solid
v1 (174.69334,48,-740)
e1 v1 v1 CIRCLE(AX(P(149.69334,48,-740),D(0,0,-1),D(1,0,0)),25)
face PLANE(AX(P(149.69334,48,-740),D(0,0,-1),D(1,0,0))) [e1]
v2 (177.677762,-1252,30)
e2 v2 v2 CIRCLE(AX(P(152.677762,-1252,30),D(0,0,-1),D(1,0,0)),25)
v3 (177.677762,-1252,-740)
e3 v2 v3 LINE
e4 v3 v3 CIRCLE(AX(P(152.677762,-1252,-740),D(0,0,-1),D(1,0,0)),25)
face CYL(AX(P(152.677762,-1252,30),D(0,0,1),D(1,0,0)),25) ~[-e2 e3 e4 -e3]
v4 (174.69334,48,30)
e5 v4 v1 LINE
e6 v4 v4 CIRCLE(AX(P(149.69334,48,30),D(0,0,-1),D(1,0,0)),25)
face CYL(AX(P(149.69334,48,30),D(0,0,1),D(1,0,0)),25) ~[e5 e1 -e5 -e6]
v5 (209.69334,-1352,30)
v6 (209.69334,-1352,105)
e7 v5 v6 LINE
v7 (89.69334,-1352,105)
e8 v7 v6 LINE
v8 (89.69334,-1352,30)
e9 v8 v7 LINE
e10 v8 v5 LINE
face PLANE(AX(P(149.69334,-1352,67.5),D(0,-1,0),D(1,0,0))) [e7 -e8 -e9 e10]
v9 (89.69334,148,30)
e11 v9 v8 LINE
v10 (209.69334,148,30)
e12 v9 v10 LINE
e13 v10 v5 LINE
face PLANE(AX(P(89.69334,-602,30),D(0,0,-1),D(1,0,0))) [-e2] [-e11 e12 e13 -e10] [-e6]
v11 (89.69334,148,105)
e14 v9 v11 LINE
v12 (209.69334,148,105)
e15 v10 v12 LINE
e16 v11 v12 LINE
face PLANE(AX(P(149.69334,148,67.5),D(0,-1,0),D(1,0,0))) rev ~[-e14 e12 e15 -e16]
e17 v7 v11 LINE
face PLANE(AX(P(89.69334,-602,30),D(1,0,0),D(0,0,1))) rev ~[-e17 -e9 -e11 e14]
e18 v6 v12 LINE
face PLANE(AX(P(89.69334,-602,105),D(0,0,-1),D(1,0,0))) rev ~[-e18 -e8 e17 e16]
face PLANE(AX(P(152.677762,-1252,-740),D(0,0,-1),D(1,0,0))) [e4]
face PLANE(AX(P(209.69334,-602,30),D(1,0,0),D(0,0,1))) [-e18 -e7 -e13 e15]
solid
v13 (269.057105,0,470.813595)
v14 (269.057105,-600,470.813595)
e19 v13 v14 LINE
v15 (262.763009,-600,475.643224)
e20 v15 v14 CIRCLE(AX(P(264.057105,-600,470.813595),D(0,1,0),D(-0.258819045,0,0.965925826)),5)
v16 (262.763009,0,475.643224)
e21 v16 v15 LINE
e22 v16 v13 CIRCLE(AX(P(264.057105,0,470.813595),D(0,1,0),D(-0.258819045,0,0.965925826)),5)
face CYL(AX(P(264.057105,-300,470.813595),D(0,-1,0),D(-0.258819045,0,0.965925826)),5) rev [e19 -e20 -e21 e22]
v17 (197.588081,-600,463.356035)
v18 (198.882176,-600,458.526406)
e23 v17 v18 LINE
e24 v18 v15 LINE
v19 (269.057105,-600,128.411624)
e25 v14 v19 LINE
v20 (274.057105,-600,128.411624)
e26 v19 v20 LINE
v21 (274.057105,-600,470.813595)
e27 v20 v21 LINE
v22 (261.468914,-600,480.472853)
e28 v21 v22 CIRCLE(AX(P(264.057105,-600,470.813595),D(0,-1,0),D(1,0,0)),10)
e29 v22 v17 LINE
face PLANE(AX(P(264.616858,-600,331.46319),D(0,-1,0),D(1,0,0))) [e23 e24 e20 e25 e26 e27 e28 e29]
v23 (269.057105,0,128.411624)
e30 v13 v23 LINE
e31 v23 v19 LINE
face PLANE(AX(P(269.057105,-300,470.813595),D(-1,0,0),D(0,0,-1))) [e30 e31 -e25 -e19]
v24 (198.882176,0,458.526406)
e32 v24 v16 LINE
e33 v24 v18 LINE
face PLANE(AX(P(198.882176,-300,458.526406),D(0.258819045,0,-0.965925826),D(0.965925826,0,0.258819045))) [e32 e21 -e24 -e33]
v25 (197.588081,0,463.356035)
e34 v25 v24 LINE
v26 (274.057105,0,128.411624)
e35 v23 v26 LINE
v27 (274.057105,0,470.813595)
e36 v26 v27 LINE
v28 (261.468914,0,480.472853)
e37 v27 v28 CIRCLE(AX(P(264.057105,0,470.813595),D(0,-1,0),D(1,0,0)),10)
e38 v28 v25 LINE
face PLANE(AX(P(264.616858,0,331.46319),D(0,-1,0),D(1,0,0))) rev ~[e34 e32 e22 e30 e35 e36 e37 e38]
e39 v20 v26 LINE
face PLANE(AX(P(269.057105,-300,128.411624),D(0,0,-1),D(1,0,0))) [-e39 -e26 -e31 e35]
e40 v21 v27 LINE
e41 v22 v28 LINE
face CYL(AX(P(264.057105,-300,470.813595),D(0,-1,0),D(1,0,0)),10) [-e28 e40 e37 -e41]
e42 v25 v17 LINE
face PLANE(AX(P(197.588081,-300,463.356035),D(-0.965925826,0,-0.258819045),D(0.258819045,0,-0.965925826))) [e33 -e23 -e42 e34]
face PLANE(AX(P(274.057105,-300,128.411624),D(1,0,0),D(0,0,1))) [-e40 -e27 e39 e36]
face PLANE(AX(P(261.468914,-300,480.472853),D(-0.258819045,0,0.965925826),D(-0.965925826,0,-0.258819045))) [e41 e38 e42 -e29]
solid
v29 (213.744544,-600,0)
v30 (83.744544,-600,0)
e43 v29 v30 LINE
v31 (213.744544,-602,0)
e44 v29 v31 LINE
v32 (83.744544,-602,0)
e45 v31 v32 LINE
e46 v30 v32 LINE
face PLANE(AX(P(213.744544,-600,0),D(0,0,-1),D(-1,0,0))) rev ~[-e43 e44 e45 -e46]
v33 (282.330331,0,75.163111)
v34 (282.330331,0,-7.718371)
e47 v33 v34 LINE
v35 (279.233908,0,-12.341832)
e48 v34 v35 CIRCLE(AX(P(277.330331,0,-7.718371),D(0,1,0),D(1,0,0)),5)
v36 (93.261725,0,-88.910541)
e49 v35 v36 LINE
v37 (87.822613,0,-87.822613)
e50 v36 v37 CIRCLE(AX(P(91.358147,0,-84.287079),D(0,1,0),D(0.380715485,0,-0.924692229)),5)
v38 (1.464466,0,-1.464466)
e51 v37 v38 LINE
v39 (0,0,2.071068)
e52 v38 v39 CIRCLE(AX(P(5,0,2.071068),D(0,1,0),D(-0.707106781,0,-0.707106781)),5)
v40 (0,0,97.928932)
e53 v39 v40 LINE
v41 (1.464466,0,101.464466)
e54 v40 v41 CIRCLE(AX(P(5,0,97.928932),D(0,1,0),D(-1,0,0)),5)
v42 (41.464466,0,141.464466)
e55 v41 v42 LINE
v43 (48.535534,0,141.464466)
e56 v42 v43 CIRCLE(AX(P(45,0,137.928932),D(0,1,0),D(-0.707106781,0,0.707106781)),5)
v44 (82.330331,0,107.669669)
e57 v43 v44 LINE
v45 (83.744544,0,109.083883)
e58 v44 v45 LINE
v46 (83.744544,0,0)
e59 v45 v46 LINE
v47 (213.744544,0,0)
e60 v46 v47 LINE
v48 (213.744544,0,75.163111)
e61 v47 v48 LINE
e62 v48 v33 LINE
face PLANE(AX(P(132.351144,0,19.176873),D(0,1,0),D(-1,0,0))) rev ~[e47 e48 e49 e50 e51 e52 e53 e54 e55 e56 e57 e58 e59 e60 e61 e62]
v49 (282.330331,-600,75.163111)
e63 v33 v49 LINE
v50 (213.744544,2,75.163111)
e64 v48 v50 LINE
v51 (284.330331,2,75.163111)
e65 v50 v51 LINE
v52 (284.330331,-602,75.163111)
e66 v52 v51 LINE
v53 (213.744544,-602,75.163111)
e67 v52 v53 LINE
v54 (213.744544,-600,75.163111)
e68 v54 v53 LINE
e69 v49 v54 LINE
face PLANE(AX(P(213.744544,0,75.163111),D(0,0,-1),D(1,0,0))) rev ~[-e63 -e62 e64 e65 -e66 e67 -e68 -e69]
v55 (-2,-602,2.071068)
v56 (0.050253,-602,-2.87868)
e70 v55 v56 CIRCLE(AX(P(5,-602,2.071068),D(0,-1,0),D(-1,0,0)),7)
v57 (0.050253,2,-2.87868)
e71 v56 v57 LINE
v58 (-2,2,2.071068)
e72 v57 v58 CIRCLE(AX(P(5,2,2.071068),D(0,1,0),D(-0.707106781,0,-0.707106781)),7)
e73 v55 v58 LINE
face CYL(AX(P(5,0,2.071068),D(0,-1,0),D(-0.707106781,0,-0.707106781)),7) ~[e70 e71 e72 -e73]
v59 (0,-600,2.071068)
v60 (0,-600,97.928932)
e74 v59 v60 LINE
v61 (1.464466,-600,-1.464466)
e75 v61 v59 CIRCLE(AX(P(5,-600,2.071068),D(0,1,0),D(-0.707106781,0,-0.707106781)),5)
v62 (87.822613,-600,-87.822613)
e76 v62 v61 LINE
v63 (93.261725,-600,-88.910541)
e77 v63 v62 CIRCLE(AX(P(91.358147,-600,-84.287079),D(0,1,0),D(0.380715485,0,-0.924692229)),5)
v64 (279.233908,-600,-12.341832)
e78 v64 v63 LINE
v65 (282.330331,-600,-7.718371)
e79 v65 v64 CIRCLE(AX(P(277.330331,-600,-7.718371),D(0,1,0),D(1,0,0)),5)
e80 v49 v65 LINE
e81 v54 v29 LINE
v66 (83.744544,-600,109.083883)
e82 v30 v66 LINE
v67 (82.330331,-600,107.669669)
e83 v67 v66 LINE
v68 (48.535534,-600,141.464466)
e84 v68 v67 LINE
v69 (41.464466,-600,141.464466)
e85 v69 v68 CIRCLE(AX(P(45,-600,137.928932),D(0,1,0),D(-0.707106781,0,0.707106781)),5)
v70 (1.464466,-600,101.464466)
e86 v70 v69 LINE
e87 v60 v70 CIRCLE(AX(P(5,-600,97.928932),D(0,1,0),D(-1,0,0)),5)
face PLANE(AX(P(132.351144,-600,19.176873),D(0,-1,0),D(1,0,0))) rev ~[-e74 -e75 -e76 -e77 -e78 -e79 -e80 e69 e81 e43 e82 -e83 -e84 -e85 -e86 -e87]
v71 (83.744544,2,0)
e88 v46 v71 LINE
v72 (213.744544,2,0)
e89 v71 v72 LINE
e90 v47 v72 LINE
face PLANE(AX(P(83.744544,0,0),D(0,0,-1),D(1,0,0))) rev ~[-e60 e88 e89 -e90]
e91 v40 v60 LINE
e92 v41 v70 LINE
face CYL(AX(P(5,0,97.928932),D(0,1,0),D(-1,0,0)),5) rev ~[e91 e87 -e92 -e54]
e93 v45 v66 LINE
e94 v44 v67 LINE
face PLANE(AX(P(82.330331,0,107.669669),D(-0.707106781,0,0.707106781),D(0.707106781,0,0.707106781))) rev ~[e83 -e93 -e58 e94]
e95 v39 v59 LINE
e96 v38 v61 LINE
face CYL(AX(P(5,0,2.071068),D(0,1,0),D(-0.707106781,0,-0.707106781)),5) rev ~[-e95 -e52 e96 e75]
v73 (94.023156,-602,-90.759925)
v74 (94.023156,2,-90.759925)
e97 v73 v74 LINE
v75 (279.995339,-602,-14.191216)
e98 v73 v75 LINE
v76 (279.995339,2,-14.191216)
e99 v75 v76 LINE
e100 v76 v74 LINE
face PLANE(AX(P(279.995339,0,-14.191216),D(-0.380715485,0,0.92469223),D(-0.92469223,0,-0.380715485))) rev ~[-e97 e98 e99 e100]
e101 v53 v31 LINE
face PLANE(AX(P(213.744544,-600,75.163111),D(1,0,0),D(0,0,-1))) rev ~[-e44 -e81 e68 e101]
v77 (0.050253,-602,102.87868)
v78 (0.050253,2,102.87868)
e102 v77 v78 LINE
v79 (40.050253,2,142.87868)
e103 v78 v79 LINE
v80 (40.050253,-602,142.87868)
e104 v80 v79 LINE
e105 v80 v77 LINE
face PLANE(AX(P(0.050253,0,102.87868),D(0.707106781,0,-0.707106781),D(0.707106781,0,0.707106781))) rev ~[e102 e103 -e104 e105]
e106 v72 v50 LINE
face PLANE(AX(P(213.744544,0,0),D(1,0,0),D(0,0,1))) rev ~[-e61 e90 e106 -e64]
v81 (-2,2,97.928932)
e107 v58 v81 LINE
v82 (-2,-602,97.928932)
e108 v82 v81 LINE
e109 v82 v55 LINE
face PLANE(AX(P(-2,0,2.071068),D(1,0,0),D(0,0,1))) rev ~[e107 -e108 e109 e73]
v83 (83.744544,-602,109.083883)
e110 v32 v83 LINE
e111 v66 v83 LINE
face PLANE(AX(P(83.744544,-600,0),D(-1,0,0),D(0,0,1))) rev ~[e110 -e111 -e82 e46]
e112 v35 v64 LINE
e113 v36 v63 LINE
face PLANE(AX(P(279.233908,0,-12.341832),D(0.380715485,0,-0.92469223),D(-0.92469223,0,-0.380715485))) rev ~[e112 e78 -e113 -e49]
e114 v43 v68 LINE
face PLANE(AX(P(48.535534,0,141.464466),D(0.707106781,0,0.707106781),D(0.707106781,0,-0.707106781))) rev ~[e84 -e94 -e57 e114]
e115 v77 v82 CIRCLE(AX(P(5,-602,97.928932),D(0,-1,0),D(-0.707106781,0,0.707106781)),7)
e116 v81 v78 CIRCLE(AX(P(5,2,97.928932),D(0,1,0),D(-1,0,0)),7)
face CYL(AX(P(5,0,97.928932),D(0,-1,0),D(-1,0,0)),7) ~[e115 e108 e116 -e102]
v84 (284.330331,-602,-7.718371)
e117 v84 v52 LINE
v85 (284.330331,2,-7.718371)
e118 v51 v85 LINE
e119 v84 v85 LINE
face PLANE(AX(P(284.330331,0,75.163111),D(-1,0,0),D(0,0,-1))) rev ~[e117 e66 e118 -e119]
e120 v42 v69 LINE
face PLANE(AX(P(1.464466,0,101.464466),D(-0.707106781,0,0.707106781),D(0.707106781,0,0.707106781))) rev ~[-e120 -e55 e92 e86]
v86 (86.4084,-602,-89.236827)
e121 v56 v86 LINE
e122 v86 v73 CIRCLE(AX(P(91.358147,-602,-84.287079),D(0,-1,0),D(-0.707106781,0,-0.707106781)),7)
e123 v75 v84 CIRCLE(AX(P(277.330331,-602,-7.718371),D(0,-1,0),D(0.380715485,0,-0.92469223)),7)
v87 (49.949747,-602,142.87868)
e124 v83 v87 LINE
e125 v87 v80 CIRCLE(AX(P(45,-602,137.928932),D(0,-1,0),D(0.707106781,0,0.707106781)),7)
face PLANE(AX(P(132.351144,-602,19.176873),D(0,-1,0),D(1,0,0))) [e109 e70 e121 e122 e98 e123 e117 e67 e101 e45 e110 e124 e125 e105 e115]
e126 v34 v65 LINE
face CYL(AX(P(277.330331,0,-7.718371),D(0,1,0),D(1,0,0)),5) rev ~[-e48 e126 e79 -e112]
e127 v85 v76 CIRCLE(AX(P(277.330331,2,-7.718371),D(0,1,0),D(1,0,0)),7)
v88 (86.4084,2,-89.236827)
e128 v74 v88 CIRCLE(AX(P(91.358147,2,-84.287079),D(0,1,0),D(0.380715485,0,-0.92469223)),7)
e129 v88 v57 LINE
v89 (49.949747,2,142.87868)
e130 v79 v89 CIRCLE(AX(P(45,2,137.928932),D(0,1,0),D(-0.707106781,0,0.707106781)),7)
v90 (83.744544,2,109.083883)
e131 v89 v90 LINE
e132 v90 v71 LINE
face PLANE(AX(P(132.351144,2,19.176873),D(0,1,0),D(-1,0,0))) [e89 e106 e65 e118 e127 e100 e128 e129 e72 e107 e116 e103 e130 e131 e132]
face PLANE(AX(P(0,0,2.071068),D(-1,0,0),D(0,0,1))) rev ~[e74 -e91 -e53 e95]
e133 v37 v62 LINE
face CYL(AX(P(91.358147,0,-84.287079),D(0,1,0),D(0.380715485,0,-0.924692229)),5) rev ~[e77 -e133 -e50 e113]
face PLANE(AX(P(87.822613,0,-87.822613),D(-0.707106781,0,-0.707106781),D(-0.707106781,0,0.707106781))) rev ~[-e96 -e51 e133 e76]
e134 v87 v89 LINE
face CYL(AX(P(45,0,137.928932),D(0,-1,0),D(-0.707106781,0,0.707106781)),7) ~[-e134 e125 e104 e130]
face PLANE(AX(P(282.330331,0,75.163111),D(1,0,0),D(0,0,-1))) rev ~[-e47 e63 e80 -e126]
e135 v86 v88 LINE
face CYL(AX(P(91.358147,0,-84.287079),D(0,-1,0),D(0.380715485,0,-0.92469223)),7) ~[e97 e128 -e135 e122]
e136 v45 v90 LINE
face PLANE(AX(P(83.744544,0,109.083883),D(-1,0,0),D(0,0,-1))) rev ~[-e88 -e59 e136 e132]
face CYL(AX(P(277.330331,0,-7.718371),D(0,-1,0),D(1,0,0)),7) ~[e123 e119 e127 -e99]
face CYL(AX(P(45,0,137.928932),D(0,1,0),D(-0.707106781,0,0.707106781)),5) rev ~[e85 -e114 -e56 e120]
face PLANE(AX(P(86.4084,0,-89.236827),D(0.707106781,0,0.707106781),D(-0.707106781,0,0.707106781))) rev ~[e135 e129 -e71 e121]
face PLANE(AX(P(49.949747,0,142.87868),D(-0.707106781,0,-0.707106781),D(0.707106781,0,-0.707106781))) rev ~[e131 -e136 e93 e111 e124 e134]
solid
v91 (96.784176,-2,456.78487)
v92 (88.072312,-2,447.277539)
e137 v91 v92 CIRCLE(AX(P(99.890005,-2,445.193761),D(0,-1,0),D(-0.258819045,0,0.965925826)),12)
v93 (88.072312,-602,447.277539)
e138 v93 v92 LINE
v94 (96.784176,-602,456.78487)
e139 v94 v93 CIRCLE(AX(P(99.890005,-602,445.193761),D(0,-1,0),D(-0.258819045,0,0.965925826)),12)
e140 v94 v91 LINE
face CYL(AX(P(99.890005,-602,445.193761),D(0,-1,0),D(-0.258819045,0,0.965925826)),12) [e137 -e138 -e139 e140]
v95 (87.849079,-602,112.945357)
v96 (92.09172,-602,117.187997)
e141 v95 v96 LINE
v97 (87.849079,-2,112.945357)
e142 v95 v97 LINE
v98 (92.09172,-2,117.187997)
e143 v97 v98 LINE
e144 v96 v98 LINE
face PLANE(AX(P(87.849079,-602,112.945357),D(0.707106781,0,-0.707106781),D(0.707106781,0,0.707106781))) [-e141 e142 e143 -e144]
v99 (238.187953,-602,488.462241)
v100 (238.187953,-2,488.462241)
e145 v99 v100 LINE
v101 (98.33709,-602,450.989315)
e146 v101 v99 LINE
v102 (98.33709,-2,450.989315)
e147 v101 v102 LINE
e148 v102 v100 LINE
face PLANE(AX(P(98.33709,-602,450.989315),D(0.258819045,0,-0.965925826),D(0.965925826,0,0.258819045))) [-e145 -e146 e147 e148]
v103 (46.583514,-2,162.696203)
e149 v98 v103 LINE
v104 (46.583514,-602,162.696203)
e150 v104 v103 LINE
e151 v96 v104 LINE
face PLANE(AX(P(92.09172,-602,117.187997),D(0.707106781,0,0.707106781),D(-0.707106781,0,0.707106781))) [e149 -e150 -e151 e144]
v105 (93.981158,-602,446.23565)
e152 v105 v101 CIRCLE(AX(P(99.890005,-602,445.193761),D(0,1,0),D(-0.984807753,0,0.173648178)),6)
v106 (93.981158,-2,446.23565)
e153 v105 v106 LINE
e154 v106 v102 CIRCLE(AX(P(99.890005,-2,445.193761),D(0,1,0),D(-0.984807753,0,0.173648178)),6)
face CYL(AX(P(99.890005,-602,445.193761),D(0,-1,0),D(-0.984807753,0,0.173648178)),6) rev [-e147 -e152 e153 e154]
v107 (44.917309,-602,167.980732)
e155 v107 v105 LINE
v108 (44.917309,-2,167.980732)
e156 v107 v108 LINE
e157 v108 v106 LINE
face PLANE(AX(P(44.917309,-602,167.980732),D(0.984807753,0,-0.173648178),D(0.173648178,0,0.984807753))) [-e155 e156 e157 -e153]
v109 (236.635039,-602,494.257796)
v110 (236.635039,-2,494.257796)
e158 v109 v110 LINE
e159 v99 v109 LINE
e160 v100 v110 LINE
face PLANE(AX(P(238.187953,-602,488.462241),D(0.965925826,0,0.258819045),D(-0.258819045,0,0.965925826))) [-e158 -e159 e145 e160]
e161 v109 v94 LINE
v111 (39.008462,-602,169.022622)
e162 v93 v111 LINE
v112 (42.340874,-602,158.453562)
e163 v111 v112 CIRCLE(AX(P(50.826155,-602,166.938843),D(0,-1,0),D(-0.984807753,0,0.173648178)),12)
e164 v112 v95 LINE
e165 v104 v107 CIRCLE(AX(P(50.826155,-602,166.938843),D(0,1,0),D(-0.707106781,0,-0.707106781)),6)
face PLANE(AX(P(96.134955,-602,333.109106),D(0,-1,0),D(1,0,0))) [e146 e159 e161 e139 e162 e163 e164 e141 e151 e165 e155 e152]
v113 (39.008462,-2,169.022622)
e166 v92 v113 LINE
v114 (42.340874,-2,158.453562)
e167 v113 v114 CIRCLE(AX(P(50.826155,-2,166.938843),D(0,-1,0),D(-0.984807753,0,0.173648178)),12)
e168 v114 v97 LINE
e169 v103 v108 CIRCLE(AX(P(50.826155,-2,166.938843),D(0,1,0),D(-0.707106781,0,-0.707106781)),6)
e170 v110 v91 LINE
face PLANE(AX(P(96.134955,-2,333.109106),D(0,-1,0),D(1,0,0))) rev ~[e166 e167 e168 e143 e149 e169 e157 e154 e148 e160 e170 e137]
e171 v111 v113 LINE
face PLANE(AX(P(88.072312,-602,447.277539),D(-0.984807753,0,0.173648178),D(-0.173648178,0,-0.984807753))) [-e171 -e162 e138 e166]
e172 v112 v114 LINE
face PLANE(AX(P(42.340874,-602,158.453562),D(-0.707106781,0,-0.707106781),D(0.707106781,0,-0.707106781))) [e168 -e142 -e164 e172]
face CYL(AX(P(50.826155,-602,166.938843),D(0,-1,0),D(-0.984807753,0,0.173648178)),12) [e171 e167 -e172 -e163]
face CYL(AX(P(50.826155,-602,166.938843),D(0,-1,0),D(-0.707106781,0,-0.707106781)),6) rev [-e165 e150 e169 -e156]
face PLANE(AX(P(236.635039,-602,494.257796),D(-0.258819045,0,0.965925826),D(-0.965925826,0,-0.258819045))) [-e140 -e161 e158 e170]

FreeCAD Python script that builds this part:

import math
import FreeCAD as App
import Part
import Sketcher
from FreeCAD import Vector
Q = App.Units.Quantity

doc = App.newDocument("Part")
body = doc.addObject("PartDesign::Body", "Body")

# Sketch on XZ plane
sketch1 = doc.addObject("Sketcher::SketchObject", "Sketch")
body.addObject(sketch1)
sketch1.AttachmentSupport = (doc.XZ_Plane, [""])
sketch1.MapMode = "FlatFace"
sketch1.addGeometry(Part.ArcOfCircle(Part.Circle(Vector(5, 2.1, 0), Vector(0, 0, 1), 5), math.radians(180), math.radians(225)), False)
sketch1.addGeometry(Part.LineSegment(Vector(0, 2.1, 0), Vector(0, 97.9, 0)), False)
sketch1.addGeometry(Part.ArcOfCircle(Part.Circle(Vector(5, 97.9, 0), Vector(0, 0, 1), 5), math.radians(135), math.radians(180)), False)
sketch1.addGeometry(Part.LineSegment(Vector(1.5, 101.5, 0), Vector(41.5, 141.5, 0)), False)
sketch1.addGeometry(Part.ArcOfCircle(Part.Circle(Vector(45, 137.9, 0), Vector(0, 0, 1), 5), math.radians(45), math.radians(135)), False)
sketch1.addGeometry(Part.LineSegment(Vector(48.5, 141.5, 0), Vector(82.3, 107.7, 0)), False)
sketch1.addGeometry(Part.LineSegment(Vector(82.3, 107.7, 0), Vector(83.7, 109.1, 0)), False)
sketch1.addGeometry(Part.LineSegment(Vector(83.7, 109.1, 0), Vector(49.9, 142.9, 0)), False)
sketch1.addGeometry(Part.ArcOfCircle(Part.Circle(Vector(45, 137.9, 0), Vector(0, 0, 1), 7), math.radians(45), math.radians(135)), False)
sketch1.addGeometry(Part.LineSegment(Vector(40.1, 142.9, 0), Vector(0.1, 102.9, 0)), False)
sketch1.addGeometry(Part.ArcOfCircle(Part.Circle(Vector(5, 97.9, 0), Vector(0, 0, 1), 7), math.radians(135), math.radians(180)), False)
sketch1.addGeometry(Part.LineSegment(Vector(-2, 97.9, 0), Vector(-2, 2.1, 0)), False)
sketch1.addGeometry(Part.ArcOfCircle(Part.Circle(Vector(5, 2.1, 0), Vector(0, 0, 1), 7), math.radians(180), math.radians(225)), False)
sketch1.addGeometry(Part.LineSegment(Vector(0.1, -2.9, 0), Vector(86.4, -89.2, 0)), False)
sketch1.addGeometry(Part.ArcOfCircle(Part.Circle(Vector(91.4, -84.3, 0), Vector(0, 0, 1), 7), math.radians(-135), math.radians(-68)), False)
sketch1.addGeometry(Part.LineSegment(Vector(94, -90.8, 0), Vector(280, -14.2, 0)), False)
sketch1.addGeometry(Part.ArcOfCircle(Part.Circle(Vector(277.3, -7.7, 0), Vector(0, 0, 1), 7), math.radians(-68), math.radians(0)), False)
sketch1.addGeometry(Part.LineSegment(Vector(284.3, -7.7, 0), Vector(284.3, 75.2, 0)), False)
sketch1.addGeometry(Part.LineSegment(Vector(284.3, 75.2, 0), Vector(282.3, 75.2, 0)), False)
sketch1.addGeometry(Part.LineSegment(Vector(282.3, 75.2, 0), Vector(282.3, -7.7, 0)), False)
sketch1.addGeometry(Part.ArcOfCircle(Part.Circle(Vector(277.3, -7.7, 0), Vector(0, 0, 1), 5), math.radians(-68), math.radians(0)), False)
sketch1.addGeometry(Part.LineSegment(Vector(279.2, -12.3, 0), Vector(93.3, -88.9, 0)), False)
sketch1.addGeometry(Part.ArcOfCircle(Part.Circle(Vector(91.4, -84.3, 0), Vector(0, 0, 1), 5), math.radians(-135), math.radians(-68)), False)
sketch1.addGeometry(Part.LineSegment(Vector(87.8, -87.8, 0), Vector(1.5, -1.5, 0)), False)
sketch1.addConstraint(Sketcher.Constraint("Tangent", 0, 1, 1, 1))
sketch1.addConstraint(Sketcher.Constraint("Tangent", 1, 2, 2, 2))
sketch1.addConstraint(Sketcher.Constraint("Tangent", 2, 1, 3, 1))
sketch1.addConstraint(Sketcher.Constraint("Tangent", 3, 2, 4, 2))
sketch1.addConstraint(Sketcher.Constraint("Tangent", 4, 1, 5, 1))
sketch1.addConstraint(Sketcher.Constraint("Coincident", 5, 2, 6, 1))
sketch1.addConstraint(Sketcher.Constraint("Coincident", 6, 2, 7, 1))
sketch1.addConstraint(Sketcher.Constraint("Tangent", 7, 2, 8, 1))
sketch1.addConstraint(Sketcher.Constraint("Tangent", 8, 2, 9, 1))
sketch1.addConstraint(Sketcher.Constraint("Tangent", 9, 2, 10, 1))
sketch1.addConstraint(Sketcher.Constraint("Tangent", 10, 2, 11, 1))
sketch1.addConstraint(Sketcher.Constraint("Tangent", 11, 2, 12, 1))
sketch1.addConstraint(Sketcher.Constraint("Tangent", 12, 2, 13, 1))
sketch1.addConstraint(Sketcher.Constraint("Tangent", 13, 2, 14, 1))
sketch1.addConstraint(Sketcher.Constraint("Tangent", 14, 2, 15, 1))
sketch1.addConstraint(Sketcher.Constraint("Tangent", 15, 2, 16, 1))
sketch1.addConstraint(Sketcher.Constraint("Tangent", 16, 2, 17, 1))
sketch1.addConstraint(Sketcher.Constraint("Coincident", 17, 2, 18, 1))
sketch1.addConstraint(Sketcher.Constraint("Coincident", 18, 2, 19, 1))
sketch1.addConstraint(Sketcher.Constraint("Tangent", 19, 2, 20, 2))
sketch1.addConstraint(Sketcher.Constraint("Tangent", 20, 1, 21, 1))
sketch1.addConstraint(Sketcher.Constraint("Tangent", 21, 2, 22, 2))
sketch1.addConstraint(Sketcher.Constraint("Tangent", 22, 1, 23, 1))
sketch1.addConstraint(Sketcher.Constraint("Tangent", 23, 2, 0, 2))
sketch1.addConstraint(Sketcher.Constraint("Vertical", 1))
sketch1.addConstraint(Sketcher.Constraint("Vertical", 11))
sketch1.addConstraint(Sketcher.Constraint("Vertical", 17))
sketch1.addConstraint(Sketcher.Constraint("Horizontal", 18))
sketch1.addConstraint(Sketcher.Constraint("Vertical", 19))
sketch1.addConstraint(Sketcher.Constraint("Coincident", 8, 3, 4, 3))
sketch1.addConstraint(Sketcher.Constraint("Coincident", 10, 3, 2, 3))
sketch1.addConstraint(Sketcher.Constraint("Coincident", 12, 3, 0, 3))
sketch1.addConstraint(Sketcher.Constraint("Coincident", 20, 3, 16, 3))
sketch1.addConstraint(Sketcher.Constraint("Coincident", 22, 3, 14, 3))
sketch1.addConstraint(Sketcher.Constraint("Equal", 0, 2))
sketch1.addConstraint(Sketcher.Constraint("Equal", 2, 4))
sketch1.addConstraint(Sketcher.Constraint("Equal", 8, 10))
sketch1.addConstraint(Sketcher.Constraint("Equal", 12, 14))
sketch1.addConstraint(Sketcher.Constraint("Equal", 14, 16))
sketch1.addConstraint(Sketcher.Constraint("Equal", 4, 20))
sketch1.addConstraint(Sketcher.Constraint("Equal", 20, 22))
sketch1.addConstraint(Sketcher.Constraint("PointOnObject", 0, 1, -2))
sketch1.addConstraint(Sketcher.Constraint("Perpendicular", 3, 5))
sketch1.addConstraint(Sketcher.Constraint("Perpendicular", 5, 6))
sketch1.addConstraint(Sketcher.Constraint("Perpendicular", 6, 7))
sketch1.addConstraint(Sketcher.Constraint("Perpendicular", 9, 13))
sketch1.addConstraint(Sketcher.Constraint("Horizontal", 3, 2, 4, 1))
sketch1.addConstraint(Sketcher.Constraint("Radius", 0, 5.0))
sketch1.addConstraint(Sketcher.Constraint("Radius", 8, 7.0))
sketch1.addConstraint(Sketcher.Constraint("DistanceX", -1, 1, 4, 3, 45.0))
sketch1.addConstraint(Sketcher.Constraint("DistanceY", 17, 1, 17, 2, 82.881482))
sketch1.addConstraint(Sketcher.Constraint("DistanceX", -1, 1, 13, 2, 86.4084))
sketch1.addConstraint(Sketcher.Constraint("Distance", 5, 47.79306))
sketch1.addConstraint(Sketcher.Constraint("DistanceY", 1, 1, 1, 2, 95.857864))
sketch1.addConstraint(Sketcher.Constraint("DistanceY", 14, 3, -1, 1, 84.287079))
sketch1.addConstraint(Sketcher.Constraint("DistanceX", -1, 1, 16, 3, 277.330331))
sketch1.addConstraint(Sketcher.Constraint("DistanceY", 16, 3, -1, 1, 7.718371))
pad1 = doc.addObject("PartDesign::Pad", "Pad")
body.addObject(pad1)
pad1.Profile = sketch1
pad1.Length = 600

# Sketch on XZ plane
sketch2 = doc.addObject("Sketcher::SketchObject", "Sketch001")
body.addObject(sketch2)
sketch2.AttachmentSupport = (doc.XZ_Plane, [""])
sketch2.MapMode = "FlatFace"
sketch2.AttachmentOffset = App.Placement(Vector(0, 0, 600), App.Rotation())
sketch2.addGeometry(Part.LineSegment(Vector(84, 109, 0), Vector(50, 143, 0)), False)
sketch2.addGeometry(Part.ArcOfCircle(Part.Circle(Vector(45, 138, 0), Vector(0, 0, 1), 7), math.radians(45), math.radians(135)), False)
sketch2.addGeometry(Part.LineSegment(Vector(40, 143, 0), Vector(0, 103, 0)), False)
sketch2.addGeometry(Part.ArcOfCircle(Part.Circle(Vector(5, 98, 0), Vector(0, 0, 1), 7), math.radians(135), math.radians(180)), False)
sketch2.addGeometry(Part.LineSegment(Vector(-2, 98, 0), Vector(-2, 2, 0)), False)
sketch2.addGeometry(Part.ArcOfCircle(Part.Circle(Vector(5, 2, 0), Vector(0, 0, 1), 7), math.radians(180), math.radians(225)), False)
sketch2.addGeometry(Part.LineSegment(Vector(0, -3, 0), Vector(86, -89, 0)), False)
sketch2.addGeometry(Part.ArcOfCircle(Part.Circle(Vector(91, -84, 0), Vector(0, 0, 1), 7), math.radians(-135), math.radians(-68)), False)
sketch2.addGeometry(Part.LineSegment(Vector(94, -91, 0), Vector(280, -14, 0)), False)
sketch2.addGeometry(Part.ArcOfCircle(Part.Circle(Vector(277, -8, 0), Vector(0, 0, 1), 7), math.radians(-68), math.radians(0)), False)
sketch2.addGeometry(Part.LineSegment(Vector(284, -8, 0), Vector(284, 75, 0)), False)
sketch2.addGeometry(Part.LineSegment(Vector(284, 75, 0), Vector(214, 75, 0)), False)
sketch2.addGeometry(Part.LineSegment(Vector(214, 75, 0), Vector(214, 0, 0)), False)
sketch2.addGeometry(Part.LineSegment(Vector(214, 0, 0), Vector(84, 0, 0)), False)
sketch2.addGeometry(Part.LineSegment(Vector(84, 0, 0), Vector(84, 109, 0)), False)
sketch2.addConstraint(Sketcher.Constraint("Tangent", 0, 2, 1, 1))
sketch2.addConstraint(Sketcher.Constraint("Tangent", 1, 2, 2, 1))
sketch2.addConstraint(Sketcher.Constraint("Tangent", 2, 2, 3, 1))
sketch2.addConstraint(Sketcher.Constraint("Tangent", 3, 2, 4, 1))
sketch2.addConstraint(Sketcher.Constraint("Tangent", 4, 2, 5, 1))
sketch2.addConstraint(Sketcher.Constraint("Tangent", 5, 2, 6, 1))
sketch2.addConstraint(Sketcher.Constraint("Tangent", 6, 2, 7, 1))
sketch2.addConstraint(Sketcher.Constraint("Tangent", 7, 2, 8, 1))
sketch2.addConstraint(Sketcher.Constraint("Tangent", 8, 2, 9, 1))
sketch2.addConstraint(Sketcher.Constraint("Tangent", 9, 2, 10, 1))
sketch2.addConstraint(Sketcher.Constraint("Coincident", 10, 2, 11, 1))
sketch2.addConstraint(Sketcher.Constraint("Coincident", 11, 2, 12, 1))
sketch2.addConstraint(Sketcher.Constraint("Coincident", 12, 2, 13, 1))
sketch2.addConstraint(Sketcher.Constraint("Coincident", 13, 2, 14, 1))
sketch2.addConstraint(Sketcher.Constraint("Coincident", 14, 2, 0, 1))
sketch2.addConstraint(Sketcher.Constraint("Vertical", 4))
sketch2.addConstraint(Sketcher.Constraint("Vertical", 10))
sketch2.addConstraint(Sketcher.Constraint("Horizontal", 11))
sketch2.addConstraint(Sketcher.Constraint("Vertical", 12))
sketch2.addConstraint(Sketcher.Constraint("Horizontal", 13))
sketch2.addConstraint(Sketcher.Constraint("Vertical", 14))
sketch2.addConstraint(Sketcher.Constraint("Equal", 1, 3))
sketch2.addConstraint(Sketcher.Constraint("Equal", 3, 5))
sketch2.addConstraint(Sketcher.Constraint("Equal", 5, 7))
sketch2.addConstraint(Sketcher.Constraint("Equal", 7, 9))
sketch2.addConstraint(Sketcher.Constraint("PointOnObject", 12, 2, -1))
sketch2.addConstraint(Sketcher.Constraint("Perpendicular", 0, 2))
sketch2.addConstraint(Sketcher.Constraint("Perpendicular", 2, 6))
sketch2.addConstraint(Sketcher.Constraint("Horizontal", 0, 2, 1, 2))
sketch2.addConstraint(Sketcher.Constraint("Radius", 1, 7.0))
sketch2.addConstraint(Sketcher.Constraint("DistanceX", 13, 2, 13, 1, 130.0))
sketch2.addConstraint(Sketcher.Constraint("DistanceX", -1, 1, 1, 3, 45.0))
sketch2.addConstraint(Sketcher.Constraint("DistanceX", -1, 1, 3, 3, 5.0))
sketch2.addConstraint(Sketcher.Constraint("DistanceY", 10, 1, 10, 2, 82.881482))
sketch2.addConstraint(Sketcher.Constraint("DistanceY", 12, 2, 12, 1, 75.163111))
sketch2.addConstraint(Sketcher.Constraint("DistanceX", -1, 1, 6, 2, 86.4084))
sketch2.addConstraint(Sketcher.Constraint("Distance", 0, 47.79306))
sketch2.addConstraint(Sketcher.Constraint("DistanceX", 11, 2, 11, 1, 70.585786))
sketch2.addConstraint(Sketcher.Constraint("DistanceY", 4, 2, 4, 1, 95.857864))
sketch2.addConstraint(Sketcher.Constraint("DistanceY", 14, 1, 14, 2, 109.083883))
pad2 = doc.addObject("PartDesign::Pad", "Pad001")
body.addObject(pad2)
pad2.Profile = sketch2
pad2.Length = 2

# Sketch on XZ plane
sketch3 = doc.addObject("Sketcher::SketchObject", "Sketch002")
body.addObject(sketch3)
sketch3.AttachmentSupport = (doc.XZ_Plane, [""])
sketch3.MapMode = "FlatFace"
sketch3.addGeometry(Part.LineSegment(Vector(214, 75, 0), Vector(284, 75, 0)), False)
sketch3.addGeometry(Part.LineSegment(Vector(284, 75, 0), Vector(284, -8, 0)), False)
sketch3.addGeometry(Part.ArcOfCircle(Part.Circle(Vector(277, -8, 0), Vector(0, 0, 1), 7), math.radians(-68), math.radians(0)), False)
sketch3.addGeometry(Part.LineSegment(Vector(280, -14, 0), Vector(94, -91, 0)), False)
sketch3.addGeometry(Part.ArcOfCircle(Part.Circle(Vector(91, -84, 0), Vector(0, 0, 1), 7), math.radians(-135), math.radians(-68)), False)
sketch3.addGeometry(Part.LineSegment(Vector(86, -89, 0), Vector(0, -3, 0)), False)
sketch3.addGeometry(Part.ArcOfCircle(Part.Circle(Vector(5, 2, 0), Vector(0, 0, 1), 7), math.radians(180), math.radians(225)), False)
sketch3.addGeometry(Part.LineSegment(Vector(-2, 2, 0), Vector(-2, 98, 0)), False)
sketch3.addGeometry(Part.ArcOfCircle(Part.Circle(Vector(5, 98, 0), Vector(0, 0, 1), 7), math.radians(135), math.radians(180)), False)
sketch3.addGeometry(Part.LineSegment(Vector(0, 103, 0), Vector(40, 143, 0)), False)
sketch3.addGeometry(Part.ArcOfCircle(Part.Circle(Vector(45, 138, 0), Vector(0, 0, 1), 7), math.radians(45), math.radians(135)), False)
sketch3.addGeometry(Part.LineSegment(Vector(50, 143, 0), Vector(84, 109, 0)), False)
sketch3.addGeometry(Part.LineSegment(Vector(84, 109, 0), Vector(84, 0, 0)), False)
sketch3.addGeometry(Part.LineSegment(Vector(84, 0, 0), Vector(214, 0, 0)), False)
sketch3.addGeometry(Part.LineSegment(Vector(214, 0, 0), Vector(214, 75, 0)), False)
sketch3.addConstraint(Sketcher.Constraint("Coincident", 0, 2, 1, 1))
sketch3.addConstraint(Sketcher.Constraint("Tangent", 1, 2, 2, 2))
sketch3.addConstraint(Sketcher.Constraint("Tangent", 2, 1, 3, 1))
sketch3.addConstraint(Sketcher.Constraint("Tangent", 3, 2, 4, 2))
sketch3.addConstraint(Sketcher.Constraint("Tangent", 4, 1, 5, 1))
sketch3.addConstraint(Sketcher.Constraint("Tangent", 5, 2, 6, 2))
sketch3.addConstraint(Sketcher.Constraint("Tangent", 6, 1, 7, 1))
sketch3.addConstraint(Sketcher.Constraint("Tangent", 7, 2, 8, 2))
sketch3.addConstraint(Sketcher.Constraint("Tangent", 8, 1, 9, 1))
sketch3.addConstraint(Sketcher.Constraint("Tangent", 9, 2, 10, 2))
sketch3.addConstraint(Sketcher.Constraint("Tangent", 10, 1, 11, 1))
sketch3.addConstraint(Sketcher.Constraint("Coincident", 11, 2, 12, 1))
sketch3.addConstraint(Sketcher.Constraint("Coincident", 12, 2, 13, 1))
sketch3.addConstraint(Sketcher.Constraint("Coincident", 13, 2, 14, 1))
sketch3.addConstraint(Sketcher.Constraint("Coincident", 14, 2, 0, 1))
sketch3.addConstraint(Sketcher.Constraint("Horizontal", 0))
sketch3.addConstraint(Sketcher.Constraint("Vertical", 1))
sketch3.addConstraint(Sketcher.Constraint("Vertical", 7))
sketch3.addConstraint(Sketcher.Constraint("Vertical", 12))
sketch3.addConstraint(Sketcher.Constraint("Horizontal", 13))
sketch3.addConstraint(Sketcher.Constraint("Vertical", 14))
sketch3.addConstraint(Sketcher.Constraint("Equal", 2, 4))
sketch3.addConstraint(Sketcher.Constraint("Equal", 4, 6))
sketch3.addConstraint(Sketcher.Constraint("Equal", 6, 8))
sketch3.addConstraint(Sketcher.Constraint("Equal", 8, 10))
sketch3.addConstraint(Sketcher.Constraint("PointOnObject", 12, 2, -1))
sketch3.addConstraint(Sketcher.Constraint("Perpendicular", 5, 9))
sketch3.addConstraint(Sketcher.Constraint("Perpendicular", 9, 11))
sketch3.addConstraint(Sketcher.Constraint("Horizontal", 9, 2, 10, 1))
sketch3.addConstraint(Sketcher.Constraint("Radius", 2, 7.0))
sketch3.addConstraint(Sketcher.Constraint("DistanceX", 13, 1, 13, 2, 130.0))
sketch3.addConstraint(Sketcher.Constraint("DistanceX", -1, 1, 6, 3, 5.0))
sketch3.addConstraint(Sketcher.Constraint("DistanceX", -1, 1, 10, 3, 45.0))
sketch3.addConstraint(Sketcher.Constraint("DistanceY", 1, 2, 1, 1, 82.881482))
sketch3.addConstraint(Sketcher.Constraint("DistanceY", 14, 1, 14, 2, 75.163111))
sketch3.addConstraint(Sketcher.Constraint("DistanceX", -1, 1, 4, 1, 86.4084))
sketch3.addConstraint(Sketcher.Constraint("Distance", 11, 47.79306))
sketch3.addConstraint(Sketcher.Constraint("DistanceX", 0, 1, 0, 2, 70.585786))
sketch3.addConstraint(Sketcher.Constraint("DistanceY", 7, 1, 7, 2, 95.857864))
sketch3.addConstraint(Sketcher.Constraint("DistanceY", 12, 2, 12, 1, 109.083883))
pad3 = doc.addObject("PartDesign::Pad", "Pad002")
body.addObject(pad3)
pad3.Profile = sketch3
pad3.Length = 2
pad3.Reversed = True
body2 = doc.addObject("PartDesign::Body", "Body001")

# Sketch on XZ plane
sketch4 = doc.addObject("Sketcher::SketchObject", "Sketch003")
body2.addObject(sketch4)
sketch4.AttachmentSupport = (doc.getObject("XZ_Plane001"), [""])
sketch4.MapMode = "FlatFace"
sketch4.AttachmentOffset = App.Placement(Vector(0, 0, 602), App.Rotation())
sketch4.addGeometry(Part.LineSegment(Vector(88, 113, 0), Vector(92, 117, 0)), False)
sketch4.addGeometry(Part.LineSegment(Vector(92, 117, 0), Vector(47, 163, 0)), False)
sketch4.addGeometry(Part.ArcOfCircle(Part.Circle(Vector(51, 167, 0), Vector(0, 0, 1), 6), math.radians(170), math.radians(225)), False)
sketch4.addGeometry(Part.LineSegment(Vector(45, 168, 0), Vector(94, 446, 0)), False)
sketch4.addGeometry(Part.ArcOfCircle(Part.Circle(Vector(100, 445, 0), Vector(0, 0, 1), 6), math.radians(105), math.radians(170)), False)
sketch4.addGeometry(Part.LineSegment(Vector(98, 451, 0), Vector(238, 488, 0)), False)
sketch4.addGeometry(Part.LineSegment(Vector(238, 488, 0), Vector(237, 494, 0)), False)
sketch4.addGeometry(Part.LineSegment(Vector(237, 494, 0), Vector(97, 457, 0)), False)
sketch4.addGeometry(Part.ArcOfCircle(Part.Circle(Vector(100, 445, 0), Vector(0, 0, 1), 12), math.radians(105), math.radians(170)), False)
sketch4.addGeometry(Part.LineSegment(Vector(88, 447, 0), Vector(39, 169, 0)), False)
sketch4.addGeometry(Part.ArcOfCircle(Part.Circle(Vector(51, 167, 0), Vector(0, 0, 1), 12), math.radians(170), math.radians(225)), False)
sketch4.addGeometry(Part.LineSegment(Vector(42, 158, 0), Vector(88, 113, 0)), False)
sketch4.addConstraint(Sketcher.Constraint("Coincident", 0, 2, 1, 1))
sketch4.addConstraint(Sketcher.Constraint("Tangent", 1, 2, 2, 2))
sketch4.addConstraint(Sketcher.Constraint("Tangent", 2, 1, 3, 1))
sketch4.addConstraint(Sketcher.Constraint("Tangent", 3, 2, 4, 2))
sketch4.addConstraint(Sketcher.Constraint("Tangent", 4, 1, 5, 1))
sketch4.addConstraint(Sketcher.Constraint("Coincident", 5, 2, 6, 1))
sketch4.addConstraint(Sketcher.Constraint("Coincident", 6, 2, 7, 1))
sketch4.addConstraint(Sketcher.Constraint("Tangent", 7, 2, 8, 1))
sketch4.addConstraint(Sketcher.Constraint("Tangent", 8, 2, 9, 1))
sketch4.addConstraint(Sketcher.Constraint("Tangent", 9, 2, 10, 1))
sketch4.addConstraint(Sketcher.Constraint("Tangent", 10, 2, 11, 1))
sketch4.addConstraint(Sketcher.Constraint("Coincident", 11, 2, 0, 1))
sketch4.addConstraint(Sketcher.Constraint("Coincident", 8, 3, 4, 3))
sketch4.addConstraint(Sketcher.Constraint("Coincident", 10, 3, 2, 3))
sketch4.addConstraint(Sketcher.Constraint("Equal", 2, 4))
sketch4.addConstraint(Sketcher.Constraint("Equal", 8, 10))
sketch4.addConstraint(Sketcher.Constraint("Perpendicular", 0, 1))
sketch4.addConstraint(Sketcher.Constraint("Perpendicular", 5, 6))
sketch4.addConstraint(Sketcher.Constraint("Perpendicular", 6, 7))
sketch4.addConstraint(Sketcher.Constraint("Parallel", 1, 11))
sketch4.addConstraint(Sketcher.Constraint("Radius", 2, 6.0))
sketch4.addConstraint(Sketcher.Constraint("Radius", 8, 12.0))
sketch4.addConstraint(Sketcher.Constraint("Angle", 0, Q("45 deg")))
sketch4.addConstraint(Sketcher.Constraint("Angle", 3, Q("80 deg")))
sketch4.addConstraint(Sketcher.Constraint("Angle", 5, Q("15 deg")))
sketch4.addConstraint(Sketcher.Constraint("DistanceX", 2, 3, 5, 2, 187.361798))
sketch4.addConstraint(Sketcher.Constraint("Distance", 1, 64.358321))
sketch4.addConstraint(Sketcher.Constraint("DistanceY", -1, 1, 4, 3, 445.193761))
sketch4.addConstraint(Sketcher.Constraint("DistanceX", -1, 1, 0, 2, 92.09172))
sketch4.addConstraint(Sketcher.Constraint("DistanceX", -1, 1, 3, 2, 93.981158))
pad4 = doc.addObject("PartDesign::Pad", "Pad003")
body2.addObject(pad4)
pad4.Profile = sketch4
pad4.Length = 600
pad4.Reversed = True
body3 = doc.addObject("PartDesign::Body", "Body002")

# Sketch on XZ plane
sketch5 = doc.addObject("Sketcher::SketchObject", "Sketch004")
body3.addObject(sketch5)
sketch5.AttachmentSupport = (doc.getObject("XZ_Plane002"), [""])
sketch5.MapMode = "FlatFace"
sketch5.AttachmentOffset = App.Placement(Vector(0, 0, 602), App.Rotation())
sketch5.addGeometry(Part.LineSegment(Vector(90, 105, 0), Vector(90, 30, 0)), False)
sketch5.addGeometry(Part.LineSegment(Vector(90, 30, 0), Vector(210, 30, 0)), False)
sketch5.addGeometry(Part.LineSegment(Vector(210, 30, 0), Vector(210, 105, 0)), False)
sketch5.addGeometry(Part.LineSegment(Vector(210, 105, 0), Vector(90, 105, 0)), False)
sketch5.addConstraint(Sketcher.Constraint("Coincident", 0, 2, 1, 1))
sketch5.addConstraint(Sketcher.Constraint("Coincident", 1, 2, 2, 1))
sketch5.addConstraint(Sketcher.Constraint("Coincident", 2, 2, 3, 1))
sketch5.addConstraint(Sketcher.Constraint("Coincident", 3, 2, 0, 1))
sketch5.addConstraint(Sketcher.Constraint("Vertical", 0))
sketch5.addConstraint(Sketcher.Constraint("Horizontal", 1))
sketch5.addConstraint(Sketcher.Constraint("Vertical", 2))
sketch5.addConstraint(Sketcher.Constraint("Horizontal", 3))
sketch5.addConstraint(Sketcher.Constraint("DistanceX", 1, 1, 1, 2, 120.0))
sketch5.addConstraint(Sketcher.Constraint("DistanceY", 0, 2, 0, 1, 75.0))
sketch5.addConstraint(Sketcher.Constraint("DistanceY", -1, 1, 0, 2, 30.0))
sketch5.addConstraint(Sketcher.Constraint("DistanceX", -1, 1, 0, 2, 89.69334))
pad5 = doc.addObject("PartDesign::Pad", "Pad004")
body3.addObject(pad5)
pad5.Profile = sketch5
pad5.Length = 1500
pad5.Midplane = True

# Sketch on XY plane
sketch6 = doc.addObject("Sketcher::SketchObject", "Sketch005")
body3.addObject(sketch6)
sketch6.AttachmentSupport = (doc.getObject("XY_Plane002"), [""])
sketch6.MapMode = "FlatFace"
sketch6.AttachmentOffset = App.Placement(Vector(0, 0, 30), App.Rotation())
sketch6.addGeometry(Part.Circle(Vector(153, -1252, 0), Vector(0, 0, 1), 25), False)
sketch6.addGeometry(Part.Circle(Vector(150, 48, 0), Vector(0, 0, 1), 25), False)
sketch6.addConstraint(Sketcher.Constraint("Equal", 0, 1))
sketch6.addConstraint(Sketcher.Constraint("Diameter", 0, 50.0))
sketch6.addConstraint(Sketcher.Constraint("DistanceY", 0, 3, -1, 1, 1252.0))
sketch6.addConstraint(Sketcher.Constraint("DistanceY", -1, 1, 1, 3, 48.0))
sketch6.addConstraint(Sketcher.Constraint("DistanceX", -1, 1, 1, 3, 149.69334))
sketch6.addConstraint(Sketcher.Constraint("DistanceX", -1, 1, 0, 3, 152.677762))
pad6 = doc.addObject("PartDesign::Pad", "Pad005")
body3.addObject(pad6)
pad6.Profile = sketch6
pad6.Length = 770
pad6.Reversed = True
body4 = doc.addObject("PartDesign::Body", "Body003")

# Sketch on XZ plane
sketch7 = doc.addObject("Sketcher::SketchObject", "Sketch006")
body4.addObject(sketch7)
sketch7.AttachmentSupport = (doc.getObject("XZ_Plane003"), [""])
sketch7.MapMode = "FlatFace"
sketch7.AttachmentOffset = App.Placement(Vector(0, 0, 300), App.Rotation())
sketch7.addGeometry(Part.LineSegment(Vector(261.5, 480.5, 0), Vector(197.6, 463.4, 0)), False)
sketch7.addGeometry(Part.LineSegment(Vector(197.6, 463.4, 0), Vector(198.9, 458.5, 0)), False)
sketch7.addGeometry(Part.LineSegment(Vector(198.9, 458.5, 0), Vector(262.8, 475.6, 0)), False)
sketch7.addGeometry(Part.ArcOfCircle(Part.Circle(Vector(264.1, 470.8, 0), Vector(0, 0, 1), 5), math.radians(0), math.radians(105)), False)
sketch7.addGeometry(Part.LineSegment(Vector(269.1, 470.8, 0), Vector(269.1, 128.4, 0)), False)
sketch7.addGeometry(Part.LineSegment(Vector(269.1, 128.4, 0), Vector(274.1, 128.4, 0)), False)
sketch7.addGeometry(Part.LineSegment(Vector(274.1, 128.4, 0), Vector(274.1, 470.8, 0)), False)
sketch7.addGeometry(Part.ArcOfCircle(Part.Circle(Vector(264.1, 470.8, 0), Vector(0, 0, 1), 10), math.radians(0), math.radians(105)), False)
sketch7.addConstraint(Sketcher.Constraint("Coincident", 0, 2, 1, 1))
sketch7.addConstraint(Sketcher.Constraint("Coincident", 1, 2, 2, 1))
sketch7.addConstraint(Sketcher.Constraint("Tangent", 2, 2, 3, 2))
sketch7.addConstraint(Sketcher.Constraint("Tangent", 3, 1, 4, 1))
sketch7.addConstraint(Sketcher.Constraint("Coincident", 4, 2, 5, 1))
sketch7.addConstraint(Sketcher.Constraint("Coincident", 5, 2, 6, 1))
sketch7.addConstraint(Sketcher.Constraint("Tangent", 6, 2, 7, 1))
sketch7.addConstraint(Sketcher.Constraint("Tangent", 7, 2, 0, 1))
sketch7.addConstraint(Sketcher.Constraint("Vertical", 4))
sketch7.addConstraint(Sketcher.Constraint("Horizontal", 5))
sketch7.addConstraint(Sketcher.Constraint("Vertical", 6))
sketch7.addConstraint(Sketcher.Constraint("Coincident", 7, 3, 3, 3))
sketch7.addConstraint(Sketcher.Constraint("Perpendicular", 0, 1))
sketch7.addConstraint(Sketcher.Constraint("Perpendicular", 1, 2))
sketch7.addConstraint(Sketcher.Constraint("Radius", 3, 5.0))
sketch7.addConstraint(Sketcher.Constraint("Radius", 7, 10.0))
sketch7.addConstraint(Sketcher.Constraint("Angle", 0, Q("-165 deg")))
sketch7.addConstraint(Sketcher.Constraint("DistanceY", 4, 2, 4, 1, 342.401971))
sketch7.addConstraint(Sketcher.Constraint("DistanceX", -1, 1, 0, 2, 197.588081))
sketch7.addConstraint(Sketcher.Constraint("DistanceX", -1, 1, 2, 2, 262.763009))
sketch7.addConstraint(Sketcher.Constraint("DistanceY", -1, 1, 3, 3, 470.813595))
pad7 = doc.addObject("PartDesign::Pad", "Pad006")
body4.addObject(pad7)
pad7.Profile = sketch7
pad7.Length = 600
pad7.Midplane = True

doc.recompute()
